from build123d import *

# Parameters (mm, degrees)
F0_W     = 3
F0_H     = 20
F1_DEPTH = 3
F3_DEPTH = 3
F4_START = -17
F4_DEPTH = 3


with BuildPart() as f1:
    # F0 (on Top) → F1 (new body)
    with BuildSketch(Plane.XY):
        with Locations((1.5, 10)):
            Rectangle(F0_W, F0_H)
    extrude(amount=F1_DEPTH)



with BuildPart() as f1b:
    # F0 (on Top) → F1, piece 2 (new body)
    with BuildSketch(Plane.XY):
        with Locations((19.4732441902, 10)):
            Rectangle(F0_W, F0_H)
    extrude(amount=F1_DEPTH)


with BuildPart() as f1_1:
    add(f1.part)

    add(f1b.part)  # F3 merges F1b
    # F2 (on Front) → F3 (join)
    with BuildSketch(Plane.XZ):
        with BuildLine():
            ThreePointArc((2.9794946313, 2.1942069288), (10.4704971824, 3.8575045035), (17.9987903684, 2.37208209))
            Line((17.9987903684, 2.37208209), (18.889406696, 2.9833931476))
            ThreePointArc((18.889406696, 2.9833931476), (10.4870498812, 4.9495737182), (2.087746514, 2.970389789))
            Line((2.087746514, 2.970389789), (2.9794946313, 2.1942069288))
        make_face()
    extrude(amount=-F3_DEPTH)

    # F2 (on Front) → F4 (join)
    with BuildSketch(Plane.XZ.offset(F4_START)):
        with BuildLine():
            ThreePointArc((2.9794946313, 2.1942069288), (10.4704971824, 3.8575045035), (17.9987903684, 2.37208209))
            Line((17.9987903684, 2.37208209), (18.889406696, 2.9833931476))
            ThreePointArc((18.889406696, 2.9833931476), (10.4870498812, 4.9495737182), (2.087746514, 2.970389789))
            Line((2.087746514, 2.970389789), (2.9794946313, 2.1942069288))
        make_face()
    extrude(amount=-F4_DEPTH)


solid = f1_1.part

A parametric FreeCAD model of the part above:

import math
import FreeCAD as App
import Part
import Sketcher
from FreeCAD import Vector


def add_polygon(sketch, points):
    """Adds a closed chain of lines whose ends are joined by coincident constraints."""
    first, n = sketch.GeometryCount, len(points)
    for a, b in zip(points, points[1:] + points[:1]):
        sketch.addGeometry(Part.LineSegment(App.Vector(*a, 0), App.Vector(*b, 0)), False)
    for i in range(n):
        sketch.addConstraint(Sketcher.Constraint("Coincident", first + i, 2, first + (i + 1) % n, 1))

doc = App.newDocument("Part")
body = doc.addObject("PartDesign::Body", "Body")

sketch1 = body.newObject("Sketcher::SketchObject", "Sketch")
sketch1.AttachmentSupport = (doc.getObject("XY_Plane"), [""])
sketch1.MapMode = "FlatFace"
add_polygon(sketch1, [(0, 20), (0, 0), (3, 0), (3, 20)])
sketch1.addConstraint([
    Sketcher.Constraint("Vertical", 0),
    Sketcher.Constraint("Horizontal", 1),
    Sketcher.Constraint("Vertical", 2),
    Sketcher.Constraint("Horizontal", 3),
    Sketcher.Constraint("Coincident", 0, 2, -1, 1),
    Sketcher.Constraint("DistanceX", 1, 1, 1, 2, 3.0),
    Sketcher.Constraint("DistanceY", 0, 2, 0, 1, 20.0),
])
pad1 = body.newObject("PartDesign::Pad", "Pad")
pad1.Profile = sketch1
pad1.Length = 3
body2 = doc.addObject("PartDesign::Body", "Body001")

sketch2 = body2.newObject("Sketcher::SketchObject", "Sketch001")
sketch2.AttachmentSupport = (doc.getObject("XY_Plane001"), [""])
sketch2.MapMode = "FlatFace"
add_polygon(sketch2, [(18, 20), (18, 0), (21, 0), (21, 20)])
sketch2.addConstraint([
    Sketcher.Constraint("Vertical", 0),
    Sketcher.Constraint("Horizontal", 1),
    Sketcher.Constraint("Vertical", 2),
    Sketcher.Constraint("Horizontal", 3),
    Sketcher.Constraint("PointOnObject", 0, 2, -1),
    Sketcher.Constraint("DistanceX", 1, 1, 1, 2, 3.0),
    Sketcher.Constraint("DistanceY", 0, 2, 0, 1, 20.0),
    Sketcher.Constraint("DistanceX", -1, 1, 0, 2, 17.973244),
])
pad2 = body2.newObject("PartDesign::Pad", "Pad001")
pad2.Profile = sketch2
pad2.Length = 3
body.AllowCompound = True
doc.recompute()

boolean = body.newObject("PartDesign::Boolean", "Boolean")
boolean.Type = "Fuse"
boolean.addObjects([body2])

sketch3 = body.newObject("Sketcher::SketchObject", "Sketch002")
sketch3.AttachmentSupport = (doc.getObject("XZ_Plane"), [""])
sketch3.MapMode = "FlatFace"
sketch3.addGeometry([
    Part.ArcOfCircle(Part.Circle(Vector(10.7, -14.8, 0), Vector(0, 0, 1), 18.7), math.radians(67), math.radians(114)),
    Part.LineSegment(Vector(18, 2.4, 0), Vector(18.9, 3, 0)),
    Part.ArcOfCircle(Part.Circle(Vector(10.5, -13.9, 0), Vector(0, 0, 1), 18.9), math.radians(64), math.radians(116)),
    Part.LineSegment(Vector(2.1, 3, 0), Vector(3, 2.2, 0)),
], False)
sketch3.addConstraint([
    Sketcher.Constraint("Coincident", 0, 1, 1, 1),
    Sketcher.Constraint("Coincident", 1, 2, 2, 1),
    Sketcher.Constraint("Coincident", 2, 2, 3, 1),
    Sketcher.Constraint("Coincident", 3, 2, 0, 2),
    Sketcher.Constraint("Radius", 2, 18.874161),
    Sketcher.Constraint("Radius", 0, 18.698884),
    Sketcher.Constraint("Distance", 1, 1.080231),
    Sketcher.Constraint("DistanceY", 0, 3, -1, 1, 14.840068),
    Sketcher.Constraint("DistanceY", 2, 3, -1, 1, 13.924581),
    Sketcher.Constraint("DistanceX", -1, 1, 0, 1, 17.99879),
    Sketcher.Constraint("DistanceY", -1, 1, 2, 2, 2.97039),
    Sketcher.Constraint("DistanceY", 0, 3, 0, 1, 17.21215),
    Sketcher.Constraint("DistanceY", 0, 1, 1, 2, 0.611311),
    Sketcher.Constraint("DistanceX", 2, 2, 3, 2, 0.891748),
])
pad3 = body.newObject("PartDesign::Pad", "Pad002")
pad3.Profile = sketch3
pad3.Length = 3
pad3.Reversed = True

sketch4 = body.newObject("Sketcher::SketchObject", "Sketch003")
sketch4.AttachmentSupport = (doc.getObject("XZ_Plane"), [""])
sketch4.MapMode = "FlatFace"
sketch4.AttachmentOffset = App.Placement(Vector(0, 0, -17), App.Rotation())
sketch4.addGeometry([
    Part.ArcOfCircle(Part.Circle(Vector(10.7, -14.8, 0), Vector(0, 0, 1), 18.7), math.radians(67), math.radians(114)),
    Part.LineSegment(Vector(18, 2.4, 0), Vector(18.9, 3, 0)),
    Part.ArcOfCircle(Part.Circle(Vector(10.5, -13.9, 0), Vector(0, 0, 1), 18.9), math.radians(64), math.radians(116)),
    Part.LineSegment(Vector(2.1, 3, 0), Vector(3, 2.2, 0)),
], False)
sketch4.addConstraint([
    Sketcher.Constraint("Coincident", 0, 1, 1, 1),
    Sketcher.Constraint("Coincident", 1, 2, 2, 1),
    Sketcher.Constraint("Coincident", 2, 2, 3, 1),
    Sketcher.Constraint("Coincident", 3, 2, 0, 2),
    Sketcher.Constraint("Radius", 2, 18.874161),
    Sketcher.Constraint("Radius", 0, 18.698884),
    Sketcher.Constraint("Distance", 1, 1.080231),
    Sketcher.Constraint("DistanceY", 0, 3, -1, 1, 14.840068),
    Sketcher.Constraint("DistanceY", 2, 3, -1, 1, 13.924581),
    Sketcher.Constraint("DistanceX", -1, 1, 0, 1, 17.99879),
    Sketcher.Constraint("DistanceY", -1, 1, 2, 2, 2.97039),
    Sketcher.Constraint("DistanceY", 0, 3, 0, 1, 17.21215),
    Sketcher.Constraint("DistanceY", 0, 1, 1, 2, 0.611311),
    Sketcher.Constraint("DistanceX", 2, 2, 3, 2, 0.891748),
])
pad4 = body.newObject("PartDesign::Pad", "Pad003")
pad4.Profile = sketch4
pad4.Length = 3
pad4.Reversed = True

doc.recompute()
